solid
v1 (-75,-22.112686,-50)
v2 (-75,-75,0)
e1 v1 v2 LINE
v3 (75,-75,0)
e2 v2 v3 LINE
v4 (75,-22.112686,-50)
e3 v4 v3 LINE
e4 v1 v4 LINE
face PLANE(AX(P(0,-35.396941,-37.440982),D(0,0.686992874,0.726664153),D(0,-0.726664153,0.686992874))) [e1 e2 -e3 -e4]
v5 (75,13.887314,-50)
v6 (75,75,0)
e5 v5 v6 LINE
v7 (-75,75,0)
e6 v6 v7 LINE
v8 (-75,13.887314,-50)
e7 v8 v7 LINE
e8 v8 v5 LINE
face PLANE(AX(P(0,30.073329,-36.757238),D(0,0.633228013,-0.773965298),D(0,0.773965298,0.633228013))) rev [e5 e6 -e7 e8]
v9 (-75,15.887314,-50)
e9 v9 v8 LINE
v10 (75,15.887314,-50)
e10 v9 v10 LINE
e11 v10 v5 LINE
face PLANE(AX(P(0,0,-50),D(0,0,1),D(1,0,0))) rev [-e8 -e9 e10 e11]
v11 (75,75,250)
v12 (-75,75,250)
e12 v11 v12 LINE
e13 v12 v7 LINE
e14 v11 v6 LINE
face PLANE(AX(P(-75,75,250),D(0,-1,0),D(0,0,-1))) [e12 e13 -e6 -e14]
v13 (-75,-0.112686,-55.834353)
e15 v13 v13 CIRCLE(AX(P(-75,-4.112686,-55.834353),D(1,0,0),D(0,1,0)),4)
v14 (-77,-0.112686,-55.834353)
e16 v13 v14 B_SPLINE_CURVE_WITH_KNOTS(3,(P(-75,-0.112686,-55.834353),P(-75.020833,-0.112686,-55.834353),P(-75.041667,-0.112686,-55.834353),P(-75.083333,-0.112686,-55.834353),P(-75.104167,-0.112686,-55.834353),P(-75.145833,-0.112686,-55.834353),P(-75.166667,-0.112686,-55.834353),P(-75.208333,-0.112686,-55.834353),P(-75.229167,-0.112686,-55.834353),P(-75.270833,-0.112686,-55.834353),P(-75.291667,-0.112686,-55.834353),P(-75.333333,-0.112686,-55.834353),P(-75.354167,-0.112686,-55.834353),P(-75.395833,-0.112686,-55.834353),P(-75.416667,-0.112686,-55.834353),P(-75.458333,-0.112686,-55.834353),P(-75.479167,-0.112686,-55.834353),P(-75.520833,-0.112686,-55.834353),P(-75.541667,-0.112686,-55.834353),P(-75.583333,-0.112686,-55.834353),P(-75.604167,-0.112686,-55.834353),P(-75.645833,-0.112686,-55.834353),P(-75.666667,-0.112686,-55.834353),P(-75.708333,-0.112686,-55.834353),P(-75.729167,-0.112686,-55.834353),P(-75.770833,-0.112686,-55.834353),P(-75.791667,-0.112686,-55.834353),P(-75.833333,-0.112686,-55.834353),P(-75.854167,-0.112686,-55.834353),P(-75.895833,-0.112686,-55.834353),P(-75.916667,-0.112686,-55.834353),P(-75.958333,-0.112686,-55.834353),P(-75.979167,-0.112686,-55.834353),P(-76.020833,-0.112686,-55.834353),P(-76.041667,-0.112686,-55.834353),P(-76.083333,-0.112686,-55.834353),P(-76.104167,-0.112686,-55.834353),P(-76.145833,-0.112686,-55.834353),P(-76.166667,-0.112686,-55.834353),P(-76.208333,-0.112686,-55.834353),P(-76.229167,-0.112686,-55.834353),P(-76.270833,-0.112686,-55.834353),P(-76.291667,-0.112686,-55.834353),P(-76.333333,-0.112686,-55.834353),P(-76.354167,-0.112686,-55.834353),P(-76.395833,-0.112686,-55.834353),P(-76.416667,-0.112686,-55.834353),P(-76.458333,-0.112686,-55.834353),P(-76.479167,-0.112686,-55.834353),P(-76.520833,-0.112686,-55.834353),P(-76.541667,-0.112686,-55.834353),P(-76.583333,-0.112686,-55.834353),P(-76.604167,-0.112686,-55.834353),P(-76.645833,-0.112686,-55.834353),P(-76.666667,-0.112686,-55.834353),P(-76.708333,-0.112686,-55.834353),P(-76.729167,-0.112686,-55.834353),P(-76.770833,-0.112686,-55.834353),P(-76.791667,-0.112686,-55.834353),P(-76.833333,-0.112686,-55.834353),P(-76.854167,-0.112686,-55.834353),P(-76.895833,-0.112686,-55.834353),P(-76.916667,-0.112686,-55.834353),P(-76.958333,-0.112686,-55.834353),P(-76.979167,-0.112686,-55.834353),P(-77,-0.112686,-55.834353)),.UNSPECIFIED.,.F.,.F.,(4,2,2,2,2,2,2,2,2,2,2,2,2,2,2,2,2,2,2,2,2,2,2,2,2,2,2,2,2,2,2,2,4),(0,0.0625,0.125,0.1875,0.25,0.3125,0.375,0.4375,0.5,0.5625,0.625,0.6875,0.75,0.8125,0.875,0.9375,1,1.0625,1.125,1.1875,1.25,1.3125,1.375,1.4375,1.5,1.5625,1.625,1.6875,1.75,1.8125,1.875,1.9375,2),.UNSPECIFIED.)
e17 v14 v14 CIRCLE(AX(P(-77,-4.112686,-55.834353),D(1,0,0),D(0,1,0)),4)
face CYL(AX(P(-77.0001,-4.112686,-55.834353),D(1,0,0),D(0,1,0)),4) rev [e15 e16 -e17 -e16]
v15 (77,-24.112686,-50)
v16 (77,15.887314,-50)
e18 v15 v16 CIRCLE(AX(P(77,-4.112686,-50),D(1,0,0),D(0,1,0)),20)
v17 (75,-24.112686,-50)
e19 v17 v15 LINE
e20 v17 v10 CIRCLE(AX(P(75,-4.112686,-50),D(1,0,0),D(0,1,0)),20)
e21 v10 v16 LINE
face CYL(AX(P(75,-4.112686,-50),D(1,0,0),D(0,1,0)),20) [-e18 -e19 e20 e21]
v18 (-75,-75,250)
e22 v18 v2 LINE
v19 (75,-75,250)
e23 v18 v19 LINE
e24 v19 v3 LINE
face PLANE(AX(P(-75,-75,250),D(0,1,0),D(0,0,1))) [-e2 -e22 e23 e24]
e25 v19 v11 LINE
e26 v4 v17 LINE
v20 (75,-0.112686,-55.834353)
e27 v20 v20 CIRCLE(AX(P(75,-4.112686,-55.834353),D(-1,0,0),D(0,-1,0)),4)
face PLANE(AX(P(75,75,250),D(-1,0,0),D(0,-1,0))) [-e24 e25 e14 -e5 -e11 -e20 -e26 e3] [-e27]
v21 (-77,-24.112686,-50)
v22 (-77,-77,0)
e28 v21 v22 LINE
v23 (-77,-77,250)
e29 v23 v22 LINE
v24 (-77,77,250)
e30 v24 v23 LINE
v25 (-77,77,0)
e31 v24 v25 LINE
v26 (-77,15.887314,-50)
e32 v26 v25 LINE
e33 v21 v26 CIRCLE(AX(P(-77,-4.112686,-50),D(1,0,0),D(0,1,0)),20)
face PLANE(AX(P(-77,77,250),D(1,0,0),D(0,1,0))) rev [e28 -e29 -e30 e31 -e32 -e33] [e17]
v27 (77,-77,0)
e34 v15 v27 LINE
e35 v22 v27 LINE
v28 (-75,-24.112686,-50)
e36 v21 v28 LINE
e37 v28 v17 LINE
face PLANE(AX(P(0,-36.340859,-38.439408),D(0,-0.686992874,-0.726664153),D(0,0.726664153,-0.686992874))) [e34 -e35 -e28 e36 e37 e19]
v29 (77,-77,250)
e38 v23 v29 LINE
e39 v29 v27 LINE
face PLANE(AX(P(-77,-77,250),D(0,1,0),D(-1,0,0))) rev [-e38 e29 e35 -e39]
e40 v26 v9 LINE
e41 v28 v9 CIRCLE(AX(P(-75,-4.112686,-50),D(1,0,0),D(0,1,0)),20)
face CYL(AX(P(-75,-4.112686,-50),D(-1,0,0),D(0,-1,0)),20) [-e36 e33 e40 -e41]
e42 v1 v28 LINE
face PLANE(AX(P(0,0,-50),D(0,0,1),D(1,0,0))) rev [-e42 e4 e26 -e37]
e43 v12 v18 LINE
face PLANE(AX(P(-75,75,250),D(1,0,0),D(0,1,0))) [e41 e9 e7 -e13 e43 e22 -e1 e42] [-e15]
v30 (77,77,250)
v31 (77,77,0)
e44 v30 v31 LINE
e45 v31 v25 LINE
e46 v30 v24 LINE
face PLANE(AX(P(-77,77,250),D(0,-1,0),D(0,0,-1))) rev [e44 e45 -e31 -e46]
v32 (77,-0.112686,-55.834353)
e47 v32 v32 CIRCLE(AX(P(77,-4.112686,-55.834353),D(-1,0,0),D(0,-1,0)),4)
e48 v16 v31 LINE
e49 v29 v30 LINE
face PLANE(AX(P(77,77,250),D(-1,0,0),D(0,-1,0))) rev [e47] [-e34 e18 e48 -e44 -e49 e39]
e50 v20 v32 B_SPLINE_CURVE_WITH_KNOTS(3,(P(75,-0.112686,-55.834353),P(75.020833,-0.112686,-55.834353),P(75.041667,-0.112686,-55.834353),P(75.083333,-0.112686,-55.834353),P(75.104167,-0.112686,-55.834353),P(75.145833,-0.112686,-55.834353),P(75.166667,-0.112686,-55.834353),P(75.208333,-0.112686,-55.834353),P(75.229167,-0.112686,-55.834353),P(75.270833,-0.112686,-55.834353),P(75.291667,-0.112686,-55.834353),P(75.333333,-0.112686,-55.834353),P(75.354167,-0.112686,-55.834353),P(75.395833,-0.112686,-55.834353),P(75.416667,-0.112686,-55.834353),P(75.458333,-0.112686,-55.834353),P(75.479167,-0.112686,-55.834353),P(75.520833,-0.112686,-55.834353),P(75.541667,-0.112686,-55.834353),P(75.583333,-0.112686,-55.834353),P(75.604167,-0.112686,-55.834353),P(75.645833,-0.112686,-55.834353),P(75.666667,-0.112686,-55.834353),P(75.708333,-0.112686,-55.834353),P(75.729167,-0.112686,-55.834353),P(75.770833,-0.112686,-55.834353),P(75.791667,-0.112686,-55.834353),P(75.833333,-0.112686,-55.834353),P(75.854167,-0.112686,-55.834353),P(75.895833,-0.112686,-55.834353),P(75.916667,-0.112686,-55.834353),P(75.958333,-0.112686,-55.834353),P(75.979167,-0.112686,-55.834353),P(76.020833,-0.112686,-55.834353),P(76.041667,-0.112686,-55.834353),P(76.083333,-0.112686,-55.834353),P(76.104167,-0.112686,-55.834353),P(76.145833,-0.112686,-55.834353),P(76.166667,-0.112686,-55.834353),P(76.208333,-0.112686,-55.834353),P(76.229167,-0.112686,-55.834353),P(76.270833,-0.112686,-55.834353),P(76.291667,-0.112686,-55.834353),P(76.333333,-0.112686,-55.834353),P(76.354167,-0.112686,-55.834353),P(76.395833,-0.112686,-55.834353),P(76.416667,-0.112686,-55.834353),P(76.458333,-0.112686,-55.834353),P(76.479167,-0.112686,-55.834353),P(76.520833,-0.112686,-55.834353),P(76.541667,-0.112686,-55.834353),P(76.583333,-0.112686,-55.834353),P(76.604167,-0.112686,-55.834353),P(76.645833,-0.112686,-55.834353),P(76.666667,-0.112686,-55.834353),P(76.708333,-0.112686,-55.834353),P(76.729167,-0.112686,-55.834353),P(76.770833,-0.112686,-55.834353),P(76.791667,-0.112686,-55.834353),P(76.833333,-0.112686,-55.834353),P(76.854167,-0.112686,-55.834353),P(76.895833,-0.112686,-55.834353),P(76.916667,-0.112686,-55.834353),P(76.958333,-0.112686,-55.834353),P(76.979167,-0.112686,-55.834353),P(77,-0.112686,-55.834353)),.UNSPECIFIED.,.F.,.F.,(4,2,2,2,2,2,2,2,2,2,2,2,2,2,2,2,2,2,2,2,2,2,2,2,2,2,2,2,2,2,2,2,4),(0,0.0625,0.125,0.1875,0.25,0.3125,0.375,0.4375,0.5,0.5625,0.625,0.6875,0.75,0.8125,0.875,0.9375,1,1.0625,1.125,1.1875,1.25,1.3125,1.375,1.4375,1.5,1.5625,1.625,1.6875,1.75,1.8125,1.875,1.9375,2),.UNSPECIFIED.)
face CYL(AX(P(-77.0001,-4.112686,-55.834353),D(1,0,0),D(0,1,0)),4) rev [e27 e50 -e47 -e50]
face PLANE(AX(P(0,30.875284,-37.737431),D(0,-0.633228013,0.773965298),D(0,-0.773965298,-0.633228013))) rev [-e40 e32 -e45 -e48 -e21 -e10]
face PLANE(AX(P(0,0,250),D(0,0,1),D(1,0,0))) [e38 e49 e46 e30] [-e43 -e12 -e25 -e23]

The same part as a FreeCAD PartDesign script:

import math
import FreeCAD as App
import Part
import Sketcher
from FreeCAD import Vector


def add_polygon(sketch, points):
    """Adds a closed chain of lines whose ends are joined by coincident constraints."""
    first, n = sketch.GeometryCount, len(points)
    for a, b in zip(points, points[1:] + points[:1]):
        sketch.addGeometry(Part.LineSegment(App.Vector(*a, 0), App.Vector(*b, 0)), False)
    for i in range(n):
        sketch.addConstraint(Sketcher.Constraint("Coincident", first + i, 2, first + (i + 1) % n, 1))

doc = App.newDocument("Part")
params = doc.addObject("Spreadsheet::Sheet", "Params")
for row, (alias, value) in enumerate([
    ("sketch1_width", "154 mm"),
    ("sketch1_width2", "150 mm"),
    ("pad1_length", "250 mm"),
    ("sketch2_width", "154 mm"),
    ("sketch2_height", "40 mm"),
    ("sketch3_width", "154 mm"),
    ("sketch4_width", "150 mm"),
    ("sketch4_height", "36 mm"),
    ("sketch5_width", "150 mm"),
    ("sketch6_radius", "20 mm"),
    ("pad2_length", "2 mm"),
    ("sketch7_radius", "20 mm"),
    ("pad3_length", "2 mm"),
    ("sketch8_diameter", "8 mm"),
], start=1):
    params.set(f"A{row}", alias)
    params.set(f"B{row}", "=" + value)
    params.setAlias(f"B{row}", alias)

body = doc.addObject("PartDesign::Body", "Body")

sketch1 = body.newObject("Sketcher::SketchObject", "Sketch")
sketch1.AttachmentSupport = (doc.getObject("XY_Plane"), [""])
sketch1.MapMode = "FlatFace"
add_polygon(sketch1, [(-77, 77), (-77, -77), (77, -77), (77, 77)])
add_polygon(sketch1, [(75, -75), (-75, -75), (-75, 75), (75, 75)])
sketch1.addConstraint([
    Sketcher.Constraint("Vertical", 0),
    Sketcher.Constraint("Horizontal", 1),
    Sketcher.Constraint("Vertical", 2),
    Sketcher.Constraint("Horizontal", 3),
    Sketcher.Constraint("Horizontal", 4),
    Sketcher.Constraint("Vertical", 5),
    Sketcher.Constraint("Horizontal", 6),
    Sketcher.Constraint("Vertical", 7),
    Sketcher.Constraint("Symmetric", 0, 2, 2, 2, -1, 1),
    Sketcher.Constraint("Symmetric", 4, 2, 6, 2, -1, 1),
    Sketcher.Constraint("Equal", 3, 0),
    Sketcher.Constraint("Equal", 6, 5),
    Sketcher.Constraint("DistanceX", 1, 1, 1, 2, 154.0),
    Sketcher.Constraint("DistanceX", 4, 2, 4, 1, 150.0),
])
sketch1.setExpression("Constraints[20]", "Params.sketch1_width")
sketch1.setExpression("Constraints[21]", "Params.sketch1_width2")
pad1 = body.newObject("PartDesign::Pad", "Pad")
pad1.Profile = sketch1
pad1.setExpression("Length", "Params.pad1_length")

sketch2 = body.newObject("Sketcher::SketchObject", "Sketch001")
sketch2.AttachmentSupport = (doc.getObject("XY_Plane"), [""])
sketch2.MapMode = "FlatFace"
sketch2.AttachmentOffset = App.Placement(Vector(0, 0, -50), App.Rotation())
add_polygon(sketch2, [(77, 16), (-77, 16), (-77, -24), (77, -24)])
sketch2.addConstraint([
    Sketcher.Constraint("Horizontal", 0),
    Sketcher.Constraint("Vertical", 1),
    Sketcher.Constraint("Horizontal", 2),
    Sketcher.Constraint("Vertical", 3),
    Sketcher.Constraint("DistanceX", 0, 2, 0, 1, 154.0),
    Sketcher.Constraint("DistanceY", 1, 2, 1, 1, 40.0),
    Sketcher.Constraint("DistanceX", 0, 2, -1, 1, 77.0),
    Sketcher.Constraint("DistanceY", -1, 1, 0, 2, 15.887314),
])
sketch2.setExpression("Constraints[8]", "Params.sketch2_width")
sketch2.setExpression("Constraints[9]", "Params.sketch2_height")

sketch3 = body.newObject("Sketcher::SketchObject", "Sketch002")
sketch3.AttachmentSupport = (doc.getObject("XY_Plane"), [""])
sketch3.MapMode = "FlatFace"
add_polygon(sketch3, [(-77, 77), (77, 77), (77, -77), (-77, -77)])
sketch3.addConstraint([
    Sketcher.Constraint("Horizontal", 0),
    Sketcher.Constraint("Vertical", 1),
    Sketcher.Constraint("Horizontal", 2),
    Sketcher.Constraint("Vertical", 3),
    Sketcher.Constraint("Symmetric", 0, 2, 2, 2, -1, 1),
    Sketcher.Constraint("Equal", 2, 1),
    Sketcher.Constraint("DistanceX", 0, 1, 0, 2, 154.0),
])
sketch3.setExpression("Constraints[10]", "Params.sketch3_width")

additiveloft = body.newObject("PartDesign::AdditiveLoft", "AdditiveLoft")
additiveloft.Profile = sketch2
additiveloft.Sections = [sketch3]

sketch4 = body.newObject("Sketcher::SketchObject", "Sketch003")
sketch4.AttachmentSupport = (doc.getObject("XY_Plane"), [""])
sketch4.MapMode = "FlatFace"
sketch4.AttachmentOffset = App.Placement(Vector(0, 0, -50), App.Rotation())
add_polygon(sketch4, [(-75, 14), (-75, -22), (75, -22), (75, 14)])
sketch4.addConstraint([
    Sketcher.Constraint("Vertical", 0),
    Sketcher.Constraint("Horizontal", 1),
    Sketcher.Constraint("Vertical", 2),
    Sketcher.Constraint("Horizontal", 3),
    Sketcher.Constraint("DistanceX", 1, 1, 1, 2, 150.0),
    Sketcher.Constraint("DistanceY", 0, 2, 0, 1, 36.0),
    Sketcher.Constraint("DistanceX", 0, 2, -1, 1, 75.0),
    Sketcher.Constraint("DistanceY", 0, 2, -1, 1, 22.112686),
])
sketch4.setExpression("Constraints[8]", "Params.sketch4_width")
sketch4.setExpression("Constraints[9]", "Params.sketch4_height")

sketch5 = body.newObject("Sketcher::SketchObject", "Sketch004")
sketch5.AttachmentSupport = (doc.getObject("XY_Plane"), [""])
sketch5.MapMode = "FlatFace"
add_polygon(sketch5, [(75, 75), (-75, 75), (-75, -75), (75, -75)])
sketch5.addConstraint([
    Sketcher.Constraint("Horizontal", 0),
    Sketcher.Constraint("Vertical", 1),
    Sketcher.Constraint("Horizontal", 2),
    Sketcher.Constraint("Vertical", 3),
    Sketcher.Constraint("Symmetric", 0, 2, 2, 2, -1, 1),
    Sketcher.Constraint("Equal", 2, 1),
    Sketcher.Constraint("DistanceX", 0, 2, 0, 1, 150.0),
])
sketch5.setExpression("Constraints[10]", "Params.sketch5_width")

subtractiveloft = body.newObject("PartDesign::SubtractiveLoft", "SubtractiveLoft")
subtractiveloft.Profile = sketch4
subtractiveloft.Sections = [sketch5]

sketch6 = body.newObject("Sketcher::SketchObject", "Sketch005")
sketch6.AttachmentSupport = (doc.getObject("YZ_Plane"), [""])
sketch6.MapMode = "FlatFace"
sketch6.AttachmentOffset = App.Placement(Vector(0, 0, 77), App.Rotation())
sketch6.addGeometry([
    Part.LineSegment(Vector(16, -50, 0), Vector(-24, -50, 0)),
    Part.ArcOfCircle(Part.Circle(Vector(-4, -50, 0), Vector(0, 0, 1), 20), math.radians(180), math.radians(360)),
], False)
sketch6.addConstraint([
    Sketcher.Constraint("Coincident", 0, 1, 1, 2),
    Sketcher.Constraint("Coincident", 1, 1, 0, 2),
    Sketcher.Constraint("Horizontal", 0),
    Sketcher.Constraint("Horizontal", 1, 3, 0, 1),
    Sketcher.Constraint("Radius", 1, 20.0),
    Sketcher.Constraint("DistanceY", 1, 3, -1, 1, 50.0),
    Sketcher.Constraint("DistanceX", 1, 3, -1, 1, 4.112686),
])
sketch6.setExpression("Constraints[4]", "Params.sketch6_radius")
pad2 = body.newObject("PartDesign::Pad", "Pad001")
pad2.Profile = sketch6
pad2.setExpression("Length", "Params.pad2_length")
pad2.Reversed = True

sketch7 = body.newObject("Sketcher::SketchObject", "Sketch006")
sketch7.AttachmentSupport = (doc.getObject("YZ_Plane"), [""])
sketch7.MapMode = "FlatFace"
sketch7.AttachmentOffset = App.Placement(Vector(0, 0, -75), App.Rotation())
sketch7.addGeometry([
    Part.LineSegment(Vector(16, -50, 0), Vector(-24, -50, 0)),
    Part.ArcOfCircle(Part.Circle(Vector(-4, -50, 0), Vector(0, 0, 1), 20), math.radians(180), math.radians(360)),
], False)
sketch7.addConstraint([
    Sketcher.Constraint("Coincident", 0, 1, 1, 2),
    Sketcher.Constraint("Coincident", 1, 1, 0, 2),
    Sketcher.Constraint("Horizontal", 0),
    Sketcher.Constraint("Horizontal", 1, 3, 0, 1),
    Sketcher.Constraint("Radius", 1, 20.0),
    Sketcher.Constraint("DistanceY", 1, 3, -1, 1, 50.0),
    Sketcher.Constraint("DistanceX", 1, 3, -1, 1, 4.112686),
])
sketch7.setExpression("Constraints[4]", "Params.sketch7_radius")
pad3 = body.newObject("PartDesign::Pad", "Pad002")
pad3.Profile = sketch7
pad3.setExpression("Length", "Params.pad3_length")
pad3.Reversed = True

sketch8 = body.newObject("Sketcher::SketchObject", "Sketch007")
sketch8.AttachmentSupport = (doc.getObject("YZ_Plane"), [""])
sketch8.MapMode = "FlatFace"
sketch8.AttachmentOffset = App.Placement(Vector(0, 0, 77), App.Rotation())
sketch8.addGeometry(Part.Circle(Vector(-4.1, -55.8, 0), Vector(0, 0, 1), 4), False)
sketch8.addConstraint([
    Sketcher.Constraint("Diameter", 0, 8.0),
    Sketcher.Constraint("DistanceX", 0, 3, -1, 1, 4.112686),
    Sketcher.Constraint("DistanceY", 0, 3, -1, 1, 55.834353),
])
sketch8.setExpression("Constraints[0]", "Params.sketch8_diameter")
pocket1 = body.newObject("PartDesign::Pocket", "Pocket")
pocket1.Profile = sketch8
pocket1.Type = "ThroughAll"
pocket1.Midplane = True

doc.recompute()
